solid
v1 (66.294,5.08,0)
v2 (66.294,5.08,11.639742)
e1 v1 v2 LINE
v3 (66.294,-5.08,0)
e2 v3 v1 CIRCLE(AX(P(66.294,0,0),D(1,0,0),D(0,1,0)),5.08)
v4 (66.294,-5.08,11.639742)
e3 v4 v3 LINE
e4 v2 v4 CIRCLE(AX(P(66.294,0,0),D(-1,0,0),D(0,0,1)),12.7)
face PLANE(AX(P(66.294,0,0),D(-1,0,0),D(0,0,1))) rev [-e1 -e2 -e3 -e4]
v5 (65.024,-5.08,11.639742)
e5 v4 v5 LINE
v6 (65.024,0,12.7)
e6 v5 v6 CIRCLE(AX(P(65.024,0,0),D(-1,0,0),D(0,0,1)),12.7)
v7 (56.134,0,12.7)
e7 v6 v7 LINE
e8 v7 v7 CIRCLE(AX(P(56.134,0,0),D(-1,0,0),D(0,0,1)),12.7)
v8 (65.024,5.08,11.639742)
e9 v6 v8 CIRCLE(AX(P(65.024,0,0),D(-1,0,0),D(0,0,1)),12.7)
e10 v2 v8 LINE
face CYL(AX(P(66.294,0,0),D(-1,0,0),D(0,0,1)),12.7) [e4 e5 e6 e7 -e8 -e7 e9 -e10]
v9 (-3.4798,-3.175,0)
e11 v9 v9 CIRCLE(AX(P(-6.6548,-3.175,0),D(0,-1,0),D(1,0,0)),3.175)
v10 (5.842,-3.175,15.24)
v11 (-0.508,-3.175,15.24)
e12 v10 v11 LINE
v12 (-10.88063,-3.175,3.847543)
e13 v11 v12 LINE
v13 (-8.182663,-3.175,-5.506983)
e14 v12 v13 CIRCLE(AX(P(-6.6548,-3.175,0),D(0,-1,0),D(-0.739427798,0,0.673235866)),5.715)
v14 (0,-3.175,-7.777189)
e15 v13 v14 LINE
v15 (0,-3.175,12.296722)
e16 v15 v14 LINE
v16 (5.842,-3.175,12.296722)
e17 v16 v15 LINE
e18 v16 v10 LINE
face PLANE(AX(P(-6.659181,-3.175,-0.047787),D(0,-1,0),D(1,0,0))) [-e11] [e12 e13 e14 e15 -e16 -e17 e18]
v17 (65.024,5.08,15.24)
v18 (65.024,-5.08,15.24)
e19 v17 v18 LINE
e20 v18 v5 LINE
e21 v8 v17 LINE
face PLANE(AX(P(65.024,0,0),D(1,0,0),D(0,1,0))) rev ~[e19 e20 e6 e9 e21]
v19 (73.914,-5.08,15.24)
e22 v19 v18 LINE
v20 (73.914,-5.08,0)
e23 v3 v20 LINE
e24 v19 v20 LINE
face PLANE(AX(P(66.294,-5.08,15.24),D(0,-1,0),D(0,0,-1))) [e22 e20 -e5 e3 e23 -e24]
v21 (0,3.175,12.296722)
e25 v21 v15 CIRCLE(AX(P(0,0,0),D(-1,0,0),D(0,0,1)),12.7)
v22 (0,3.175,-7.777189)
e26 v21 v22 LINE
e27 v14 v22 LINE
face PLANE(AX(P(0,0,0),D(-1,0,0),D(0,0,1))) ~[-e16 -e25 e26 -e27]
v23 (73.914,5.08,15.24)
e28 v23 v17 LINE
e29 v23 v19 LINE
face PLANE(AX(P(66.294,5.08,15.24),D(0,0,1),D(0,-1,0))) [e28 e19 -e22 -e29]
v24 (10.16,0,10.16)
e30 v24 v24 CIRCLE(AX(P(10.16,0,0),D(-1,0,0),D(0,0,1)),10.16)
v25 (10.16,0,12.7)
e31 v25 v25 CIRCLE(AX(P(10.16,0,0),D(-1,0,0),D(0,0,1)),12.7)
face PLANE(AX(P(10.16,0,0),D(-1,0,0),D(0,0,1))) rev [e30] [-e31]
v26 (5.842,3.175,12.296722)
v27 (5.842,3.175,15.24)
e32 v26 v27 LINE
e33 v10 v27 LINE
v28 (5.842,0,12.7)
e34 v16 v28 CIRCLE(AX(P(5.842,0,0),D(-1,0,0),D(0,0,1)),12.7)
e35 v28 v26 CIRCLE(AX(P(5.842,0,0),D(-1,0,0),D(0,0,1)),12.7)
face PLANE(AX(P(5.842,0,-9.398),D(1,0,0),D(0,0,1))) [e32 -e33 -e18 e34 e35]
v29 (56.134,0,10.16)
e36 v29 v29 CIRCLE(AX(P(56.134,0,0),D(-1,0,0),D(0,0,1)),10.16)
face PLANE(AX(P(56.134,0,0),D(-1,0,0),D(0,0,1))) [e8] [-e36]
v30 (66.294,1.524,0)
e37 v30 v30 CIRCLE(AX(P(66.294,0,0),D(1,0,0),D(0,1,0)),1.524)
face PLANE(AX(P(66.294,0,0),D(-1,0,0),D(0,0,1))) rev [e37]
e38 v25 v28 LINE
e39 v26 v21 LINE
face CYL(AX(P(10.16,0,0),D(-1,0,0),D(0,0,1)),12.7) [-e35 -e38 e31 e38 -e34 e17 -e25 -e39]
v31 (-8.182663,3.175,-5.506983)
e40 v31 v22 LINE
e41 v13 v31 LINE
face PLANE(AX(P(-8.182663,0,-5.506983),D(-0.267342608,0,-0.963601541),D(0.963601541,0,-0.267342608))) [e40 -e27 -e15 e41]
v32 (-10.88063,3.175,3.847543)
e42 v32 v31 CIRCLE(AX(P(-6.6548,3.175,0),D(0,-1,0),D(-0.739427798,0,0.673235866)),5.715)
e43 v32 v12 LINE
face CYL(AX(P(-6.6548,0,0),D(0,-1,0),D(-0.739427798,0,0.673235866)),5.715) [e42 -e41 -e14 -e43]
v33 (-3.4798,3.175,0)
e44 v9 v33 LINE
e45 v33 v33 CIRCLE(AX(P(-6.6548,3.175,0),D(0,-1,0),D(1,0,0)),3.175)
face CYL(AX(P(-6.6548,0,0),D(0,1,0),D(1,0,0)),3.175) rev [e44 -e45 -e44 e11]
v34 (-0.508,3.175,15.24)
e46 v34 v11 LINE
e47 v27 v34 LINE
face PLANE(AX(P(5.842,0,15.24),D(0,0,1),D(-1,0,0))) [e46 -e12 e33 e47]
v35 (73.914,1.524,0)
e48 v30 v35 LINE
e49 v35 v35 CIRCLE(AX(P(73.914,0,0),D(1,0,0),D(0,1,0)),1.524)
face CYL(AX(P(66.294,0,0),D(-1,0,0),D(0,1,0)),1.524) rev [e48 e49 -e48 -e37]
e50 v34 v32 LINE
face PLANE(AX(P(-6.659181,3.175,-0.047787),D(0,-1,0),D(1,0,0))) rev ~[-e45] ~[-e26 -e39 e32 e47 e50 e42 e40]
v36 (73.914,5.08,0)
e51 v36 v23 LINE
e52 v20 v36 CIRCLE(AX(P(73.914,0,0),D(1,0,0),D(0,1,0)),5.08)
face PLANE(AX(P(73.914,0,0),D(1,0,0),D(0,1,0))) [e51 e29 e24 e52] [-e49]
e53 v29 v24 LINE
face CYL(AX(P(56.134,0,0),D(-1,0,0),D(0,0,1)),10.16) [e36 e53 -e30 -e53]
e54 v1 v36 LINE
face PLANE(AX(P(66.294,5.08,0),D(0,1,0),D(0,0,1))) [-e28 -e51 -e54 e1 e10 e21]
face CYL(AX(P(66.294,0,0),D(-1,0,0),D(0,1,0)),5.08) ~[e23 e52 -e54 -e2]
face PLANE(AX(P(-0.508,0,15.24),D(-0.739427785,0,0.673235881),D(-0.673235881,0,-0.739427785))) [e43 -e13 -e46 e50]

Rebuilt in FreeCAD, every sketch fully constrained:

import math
import FreeCAD as App
import Part
import Sketcher
Q = App.Units.Quantity

doc = App.newDocument("Part")
body = doc.addObject("PartDesign::Body", "Body")

# Sketch on XZ plane
sketch1 = body.newObject("Sketcher::SketchObject", "Sketch")
sketch1.AttachmentSupport = (doc.getObject("XZ_Plane"), [""])
sketch1.MapMode = "FlatFace"
sketch1.addGeometry([
    Part.LineSegment(App.Vector(66.294, 0, 0), App.Vector(66.294, 12.7, 0)),  # 0
    Part.LineSegment(App.Vector(66.294, 12.7, 0), App.Vector(56.134, 12.7, 0)),  # 1
    Part.LineSegment(App.Vector(56.134, 12.7, 0), App.Vector(56.134, 10.16, 0)),  # 2
    Part.LineSegment(App.Vector(56.134, 10.16, 0), App.Vector(10.16, 10.16, 0)),  # 3
    Part.LineSegment(App.Vector(10.16, 10.16, 0), App.Vector(10.16, 12.7, 0)),  # 4
    Part.LineSegment(App.Vector(10.16, 12.7, 0), App.Vector(0, 12.7, 0)),  # 5
    Part.LineSegment(App.Vector(0, 12.7, 0), App.Vector(0, 0, 0)),  # 6
    Part.LineSegment(App.Vector(0, 0, 0), App.Vector(66.294, 0, 0)),  # 7
], False)
sketch1.addConstraint([
    Sketcher.Constraint("Coincident", 0, 2, 1, 1),
    Sketcher.Constraint("Coincident", 1, 2, 2, 1),
    Sketcher.Constraint("Coincident", 2, 2, 3, 1),
    Sketcher.Constraint("Coincident", 3, 2, 4, 1),
    Sketcher.Constraint("Coincident", 4, 2, 5, 1),
    Sketcher.Constraint("Coincident", 5, 2, 6, 1),
    Sketcher.Constraint("Coincident", 6, 2, 7, 1),
    Sketcher.Constraint("Coincident", 7, 2, 0, 1),
    Sketcher.Constraint("Vertical", 0),
    Sketcher.Constraint("Horizontal", 1),
    Sketcher.Constraint("Vertical", 2),
    Sketcher.Constraint("Horizontal", 3),
    Sketcher.Constraint("Vertical", 4),
    Sketcher.Constraint("Horizontal", 5),
    Sketcher.Constraint("Vertical", 6),
    Sketcher.Constraint("Horizontal", 7),
    Sketcher.Constraint("Coincident", 6, 2, -1, 1),
    Sketcher.Constraint("Horizontal", 1, 2, 4, 2),
    Sketcher.Constraint("Equal", 1, 5),
    Sketcher.Constraint("DistanceX", 1, 2, 1, 1, Q("0.4 in")),
    Sketcher.Constraint("DistanceY", 0, 1, 0, 2, Q("0.5 in")),
    Sketcher.Constraint("DistanceY", 2, 2, 2, 1, Q("0.1 in")),
    Sketcher.Constraint("DistanceX", 3, 2, 3, 1, Q("1.81 in")),
])
revolution = body.newObject("PartDesign::Revolution", "Revolution")
revolution.Profile = sketch1
revolution.ReferenceAxis = (sketch1, ["H_Axis"])
revolution.Angle = 360

# Sketch on YZ plane
sketch2 = body.newObject("Sketcher::SketchObject", "Sketch001")
sketch2.AttachmentSupport = (doc.getObject("YZ_Plane"), [""])
sketch2.MapMode = "FlatFace"
sketch2.AttachmentOffset = App.Placement(App.Vector(0, 0, 2.61 * 25.4), App.Rotation())
sketch2.addGeometry([
    Part.ArcOfCircle(Part.Circle(App.Vector(0, 0, 0), App.Vector(0, 0, 1), 5.08), math.radians(180), math.radians(360)),  # 0
    Part.LineSegment(App.Vector(5.08, 0, 0), App.Vector(5.08, 15.24, 0)),  # 1
    Part.LineSegment(App.Vector(5.08, 15.24, 0), App.Vector(-5.08, 15.24, 0)),  # 2
    Part.LineSegment(App.Vector(-5.08, 15.24, 0), App.Vector(-5.08, 0, 0)),  # 3
    Part.Circle(App.Vector(0, 0, 0), App.Vector(0, 0, 1), 1.524),  # 4
], False)
sketch2.addConstraint([
    Sketcher.Constraint("Tangent", 0, 2, 1, 1),
    Sketcher.Constraint("Coincident", 1, 2, 2, 1),
    Sketcher.Constraint("Coincident", 2, 2, 3, 1),
    Sketcher.Constraint("Tangent", 3, 2, 0, 1),
    Sketcher.Constraint("Vertical", 1),
    Sketcher.Constraint("Horizontal", 2),
    Sketcher.Constraint("Vertical", 3),
    Sketcher.Constraint("Coincident", 0, 3, -1, 1),
    Sketcher.Constraint("Coincident", 4, 3, -1, 1),
    Sketcher.Constraint("Radius", 0, Q("0.2 in")),
    Sketcher.Constraint("Diameter", 4, Q("0.12 in")),
    Sketcher.Constraint("DistanceY", 1, 1, 1, 2, Q("0.6 in")),
])
pad1 = body.newObject("PartDesign::Pad", "Pad")
pad1.Profile = sketch2
pad1.Type = "TwoLengths"
pad1.Length = Q("0.3 in")
pad1.Length2 = Q("0.05 in")

# Sketch on XZ plane
sketch3 = body.newObject("Sketcher::SketchObject", "Sketch002")
sketch3.AttachmentSupport = (doc.getObject("XZ_Plane"), [""])
sketch3.MapMode = "FlatFace"
sketch3.addGeometry([
    Part.LineSegment(App.Vector(5.842, 15.24, 0), App.Vector(-0.508, 15.24, 0)),  # 0
    Part.LineSegment(App.Vector(-0.508, 15.24, 0), App.Vector(-10.88063, 3.847543, 0)),  # 1
    Part.ArcOfCircle(Part.Circle(App.Vector(-6.6548, 0, 0), App.Vector(0, 0, 1), 5.715), math.radians(137.682696), math.radians(254.493803)),  # 2
    Part.LineSegment(App.Vector(-8.182663, -5.506983, 0), App.Vector(5.842, -9.398, 0)),  # 3
    Part.LineSegment(App.Vector(5.842, -9.398, 0), App.Vector(5.842, 15.24, 0)),  # 4
    Part.Circle(App.Vector(-6.6548, 0, 0), App.Vector(0, 0, 1), 3.175),  # 5
], False)
sketch3.addConstraint([
    Sketcher.Constraint("Coincident", 0, 2, 1, 1),
    Sketcher.Constraint("Tangent", 1, 2, 2, 1),
    Sketcher.Constraint("Tangent", 2, 2, 3, 1),
    Sketcher.Constraint("Coincident", 3, 2, 4, 1),
    Sketcher.Constraint("Coincident", 4, 2, 0, 1),
    Sketcher.Constraint("Horizontal", 0),
    Sketcher.Constraint("Vertical", 4),
    Sketcher.Constraint("Coincident", 5, 3, 2, 3),
    Sketcher.Constraint("PointOnObject", 2, 3, -1),
    Sketcher.Constraint("Diameter", 5, Q("0.25 in")),
    Sketcher.Constraint("Radius", 2, Q("0.225 in")),
    Sketcher.Constraint("DistanceX", 0, 2, 0, 1, Q("0.25 in")),
    Sketcher.Constraint("DistanceY", 4, 1, 4, 2, Q("0.97 in")),
    Sketcher.Constraint("DistanceY", -1, 1, 0, 2, Q("0.6 in")),
    Sketcher.Constraint("DistanceX", 0, 2, -1, 1, Q("0.02 in")),
    Sketcher.Constraint("DistanceX", 2, 3, -1, 1, Q("0.262 in")),
])
pad2 = body.newObject("PartDesign::Pad", "Pad001")
pad2.Profile = sketch3
pad2.Length = Q("0.25 in")
pad2.Midplane = True

doc.recompute()
